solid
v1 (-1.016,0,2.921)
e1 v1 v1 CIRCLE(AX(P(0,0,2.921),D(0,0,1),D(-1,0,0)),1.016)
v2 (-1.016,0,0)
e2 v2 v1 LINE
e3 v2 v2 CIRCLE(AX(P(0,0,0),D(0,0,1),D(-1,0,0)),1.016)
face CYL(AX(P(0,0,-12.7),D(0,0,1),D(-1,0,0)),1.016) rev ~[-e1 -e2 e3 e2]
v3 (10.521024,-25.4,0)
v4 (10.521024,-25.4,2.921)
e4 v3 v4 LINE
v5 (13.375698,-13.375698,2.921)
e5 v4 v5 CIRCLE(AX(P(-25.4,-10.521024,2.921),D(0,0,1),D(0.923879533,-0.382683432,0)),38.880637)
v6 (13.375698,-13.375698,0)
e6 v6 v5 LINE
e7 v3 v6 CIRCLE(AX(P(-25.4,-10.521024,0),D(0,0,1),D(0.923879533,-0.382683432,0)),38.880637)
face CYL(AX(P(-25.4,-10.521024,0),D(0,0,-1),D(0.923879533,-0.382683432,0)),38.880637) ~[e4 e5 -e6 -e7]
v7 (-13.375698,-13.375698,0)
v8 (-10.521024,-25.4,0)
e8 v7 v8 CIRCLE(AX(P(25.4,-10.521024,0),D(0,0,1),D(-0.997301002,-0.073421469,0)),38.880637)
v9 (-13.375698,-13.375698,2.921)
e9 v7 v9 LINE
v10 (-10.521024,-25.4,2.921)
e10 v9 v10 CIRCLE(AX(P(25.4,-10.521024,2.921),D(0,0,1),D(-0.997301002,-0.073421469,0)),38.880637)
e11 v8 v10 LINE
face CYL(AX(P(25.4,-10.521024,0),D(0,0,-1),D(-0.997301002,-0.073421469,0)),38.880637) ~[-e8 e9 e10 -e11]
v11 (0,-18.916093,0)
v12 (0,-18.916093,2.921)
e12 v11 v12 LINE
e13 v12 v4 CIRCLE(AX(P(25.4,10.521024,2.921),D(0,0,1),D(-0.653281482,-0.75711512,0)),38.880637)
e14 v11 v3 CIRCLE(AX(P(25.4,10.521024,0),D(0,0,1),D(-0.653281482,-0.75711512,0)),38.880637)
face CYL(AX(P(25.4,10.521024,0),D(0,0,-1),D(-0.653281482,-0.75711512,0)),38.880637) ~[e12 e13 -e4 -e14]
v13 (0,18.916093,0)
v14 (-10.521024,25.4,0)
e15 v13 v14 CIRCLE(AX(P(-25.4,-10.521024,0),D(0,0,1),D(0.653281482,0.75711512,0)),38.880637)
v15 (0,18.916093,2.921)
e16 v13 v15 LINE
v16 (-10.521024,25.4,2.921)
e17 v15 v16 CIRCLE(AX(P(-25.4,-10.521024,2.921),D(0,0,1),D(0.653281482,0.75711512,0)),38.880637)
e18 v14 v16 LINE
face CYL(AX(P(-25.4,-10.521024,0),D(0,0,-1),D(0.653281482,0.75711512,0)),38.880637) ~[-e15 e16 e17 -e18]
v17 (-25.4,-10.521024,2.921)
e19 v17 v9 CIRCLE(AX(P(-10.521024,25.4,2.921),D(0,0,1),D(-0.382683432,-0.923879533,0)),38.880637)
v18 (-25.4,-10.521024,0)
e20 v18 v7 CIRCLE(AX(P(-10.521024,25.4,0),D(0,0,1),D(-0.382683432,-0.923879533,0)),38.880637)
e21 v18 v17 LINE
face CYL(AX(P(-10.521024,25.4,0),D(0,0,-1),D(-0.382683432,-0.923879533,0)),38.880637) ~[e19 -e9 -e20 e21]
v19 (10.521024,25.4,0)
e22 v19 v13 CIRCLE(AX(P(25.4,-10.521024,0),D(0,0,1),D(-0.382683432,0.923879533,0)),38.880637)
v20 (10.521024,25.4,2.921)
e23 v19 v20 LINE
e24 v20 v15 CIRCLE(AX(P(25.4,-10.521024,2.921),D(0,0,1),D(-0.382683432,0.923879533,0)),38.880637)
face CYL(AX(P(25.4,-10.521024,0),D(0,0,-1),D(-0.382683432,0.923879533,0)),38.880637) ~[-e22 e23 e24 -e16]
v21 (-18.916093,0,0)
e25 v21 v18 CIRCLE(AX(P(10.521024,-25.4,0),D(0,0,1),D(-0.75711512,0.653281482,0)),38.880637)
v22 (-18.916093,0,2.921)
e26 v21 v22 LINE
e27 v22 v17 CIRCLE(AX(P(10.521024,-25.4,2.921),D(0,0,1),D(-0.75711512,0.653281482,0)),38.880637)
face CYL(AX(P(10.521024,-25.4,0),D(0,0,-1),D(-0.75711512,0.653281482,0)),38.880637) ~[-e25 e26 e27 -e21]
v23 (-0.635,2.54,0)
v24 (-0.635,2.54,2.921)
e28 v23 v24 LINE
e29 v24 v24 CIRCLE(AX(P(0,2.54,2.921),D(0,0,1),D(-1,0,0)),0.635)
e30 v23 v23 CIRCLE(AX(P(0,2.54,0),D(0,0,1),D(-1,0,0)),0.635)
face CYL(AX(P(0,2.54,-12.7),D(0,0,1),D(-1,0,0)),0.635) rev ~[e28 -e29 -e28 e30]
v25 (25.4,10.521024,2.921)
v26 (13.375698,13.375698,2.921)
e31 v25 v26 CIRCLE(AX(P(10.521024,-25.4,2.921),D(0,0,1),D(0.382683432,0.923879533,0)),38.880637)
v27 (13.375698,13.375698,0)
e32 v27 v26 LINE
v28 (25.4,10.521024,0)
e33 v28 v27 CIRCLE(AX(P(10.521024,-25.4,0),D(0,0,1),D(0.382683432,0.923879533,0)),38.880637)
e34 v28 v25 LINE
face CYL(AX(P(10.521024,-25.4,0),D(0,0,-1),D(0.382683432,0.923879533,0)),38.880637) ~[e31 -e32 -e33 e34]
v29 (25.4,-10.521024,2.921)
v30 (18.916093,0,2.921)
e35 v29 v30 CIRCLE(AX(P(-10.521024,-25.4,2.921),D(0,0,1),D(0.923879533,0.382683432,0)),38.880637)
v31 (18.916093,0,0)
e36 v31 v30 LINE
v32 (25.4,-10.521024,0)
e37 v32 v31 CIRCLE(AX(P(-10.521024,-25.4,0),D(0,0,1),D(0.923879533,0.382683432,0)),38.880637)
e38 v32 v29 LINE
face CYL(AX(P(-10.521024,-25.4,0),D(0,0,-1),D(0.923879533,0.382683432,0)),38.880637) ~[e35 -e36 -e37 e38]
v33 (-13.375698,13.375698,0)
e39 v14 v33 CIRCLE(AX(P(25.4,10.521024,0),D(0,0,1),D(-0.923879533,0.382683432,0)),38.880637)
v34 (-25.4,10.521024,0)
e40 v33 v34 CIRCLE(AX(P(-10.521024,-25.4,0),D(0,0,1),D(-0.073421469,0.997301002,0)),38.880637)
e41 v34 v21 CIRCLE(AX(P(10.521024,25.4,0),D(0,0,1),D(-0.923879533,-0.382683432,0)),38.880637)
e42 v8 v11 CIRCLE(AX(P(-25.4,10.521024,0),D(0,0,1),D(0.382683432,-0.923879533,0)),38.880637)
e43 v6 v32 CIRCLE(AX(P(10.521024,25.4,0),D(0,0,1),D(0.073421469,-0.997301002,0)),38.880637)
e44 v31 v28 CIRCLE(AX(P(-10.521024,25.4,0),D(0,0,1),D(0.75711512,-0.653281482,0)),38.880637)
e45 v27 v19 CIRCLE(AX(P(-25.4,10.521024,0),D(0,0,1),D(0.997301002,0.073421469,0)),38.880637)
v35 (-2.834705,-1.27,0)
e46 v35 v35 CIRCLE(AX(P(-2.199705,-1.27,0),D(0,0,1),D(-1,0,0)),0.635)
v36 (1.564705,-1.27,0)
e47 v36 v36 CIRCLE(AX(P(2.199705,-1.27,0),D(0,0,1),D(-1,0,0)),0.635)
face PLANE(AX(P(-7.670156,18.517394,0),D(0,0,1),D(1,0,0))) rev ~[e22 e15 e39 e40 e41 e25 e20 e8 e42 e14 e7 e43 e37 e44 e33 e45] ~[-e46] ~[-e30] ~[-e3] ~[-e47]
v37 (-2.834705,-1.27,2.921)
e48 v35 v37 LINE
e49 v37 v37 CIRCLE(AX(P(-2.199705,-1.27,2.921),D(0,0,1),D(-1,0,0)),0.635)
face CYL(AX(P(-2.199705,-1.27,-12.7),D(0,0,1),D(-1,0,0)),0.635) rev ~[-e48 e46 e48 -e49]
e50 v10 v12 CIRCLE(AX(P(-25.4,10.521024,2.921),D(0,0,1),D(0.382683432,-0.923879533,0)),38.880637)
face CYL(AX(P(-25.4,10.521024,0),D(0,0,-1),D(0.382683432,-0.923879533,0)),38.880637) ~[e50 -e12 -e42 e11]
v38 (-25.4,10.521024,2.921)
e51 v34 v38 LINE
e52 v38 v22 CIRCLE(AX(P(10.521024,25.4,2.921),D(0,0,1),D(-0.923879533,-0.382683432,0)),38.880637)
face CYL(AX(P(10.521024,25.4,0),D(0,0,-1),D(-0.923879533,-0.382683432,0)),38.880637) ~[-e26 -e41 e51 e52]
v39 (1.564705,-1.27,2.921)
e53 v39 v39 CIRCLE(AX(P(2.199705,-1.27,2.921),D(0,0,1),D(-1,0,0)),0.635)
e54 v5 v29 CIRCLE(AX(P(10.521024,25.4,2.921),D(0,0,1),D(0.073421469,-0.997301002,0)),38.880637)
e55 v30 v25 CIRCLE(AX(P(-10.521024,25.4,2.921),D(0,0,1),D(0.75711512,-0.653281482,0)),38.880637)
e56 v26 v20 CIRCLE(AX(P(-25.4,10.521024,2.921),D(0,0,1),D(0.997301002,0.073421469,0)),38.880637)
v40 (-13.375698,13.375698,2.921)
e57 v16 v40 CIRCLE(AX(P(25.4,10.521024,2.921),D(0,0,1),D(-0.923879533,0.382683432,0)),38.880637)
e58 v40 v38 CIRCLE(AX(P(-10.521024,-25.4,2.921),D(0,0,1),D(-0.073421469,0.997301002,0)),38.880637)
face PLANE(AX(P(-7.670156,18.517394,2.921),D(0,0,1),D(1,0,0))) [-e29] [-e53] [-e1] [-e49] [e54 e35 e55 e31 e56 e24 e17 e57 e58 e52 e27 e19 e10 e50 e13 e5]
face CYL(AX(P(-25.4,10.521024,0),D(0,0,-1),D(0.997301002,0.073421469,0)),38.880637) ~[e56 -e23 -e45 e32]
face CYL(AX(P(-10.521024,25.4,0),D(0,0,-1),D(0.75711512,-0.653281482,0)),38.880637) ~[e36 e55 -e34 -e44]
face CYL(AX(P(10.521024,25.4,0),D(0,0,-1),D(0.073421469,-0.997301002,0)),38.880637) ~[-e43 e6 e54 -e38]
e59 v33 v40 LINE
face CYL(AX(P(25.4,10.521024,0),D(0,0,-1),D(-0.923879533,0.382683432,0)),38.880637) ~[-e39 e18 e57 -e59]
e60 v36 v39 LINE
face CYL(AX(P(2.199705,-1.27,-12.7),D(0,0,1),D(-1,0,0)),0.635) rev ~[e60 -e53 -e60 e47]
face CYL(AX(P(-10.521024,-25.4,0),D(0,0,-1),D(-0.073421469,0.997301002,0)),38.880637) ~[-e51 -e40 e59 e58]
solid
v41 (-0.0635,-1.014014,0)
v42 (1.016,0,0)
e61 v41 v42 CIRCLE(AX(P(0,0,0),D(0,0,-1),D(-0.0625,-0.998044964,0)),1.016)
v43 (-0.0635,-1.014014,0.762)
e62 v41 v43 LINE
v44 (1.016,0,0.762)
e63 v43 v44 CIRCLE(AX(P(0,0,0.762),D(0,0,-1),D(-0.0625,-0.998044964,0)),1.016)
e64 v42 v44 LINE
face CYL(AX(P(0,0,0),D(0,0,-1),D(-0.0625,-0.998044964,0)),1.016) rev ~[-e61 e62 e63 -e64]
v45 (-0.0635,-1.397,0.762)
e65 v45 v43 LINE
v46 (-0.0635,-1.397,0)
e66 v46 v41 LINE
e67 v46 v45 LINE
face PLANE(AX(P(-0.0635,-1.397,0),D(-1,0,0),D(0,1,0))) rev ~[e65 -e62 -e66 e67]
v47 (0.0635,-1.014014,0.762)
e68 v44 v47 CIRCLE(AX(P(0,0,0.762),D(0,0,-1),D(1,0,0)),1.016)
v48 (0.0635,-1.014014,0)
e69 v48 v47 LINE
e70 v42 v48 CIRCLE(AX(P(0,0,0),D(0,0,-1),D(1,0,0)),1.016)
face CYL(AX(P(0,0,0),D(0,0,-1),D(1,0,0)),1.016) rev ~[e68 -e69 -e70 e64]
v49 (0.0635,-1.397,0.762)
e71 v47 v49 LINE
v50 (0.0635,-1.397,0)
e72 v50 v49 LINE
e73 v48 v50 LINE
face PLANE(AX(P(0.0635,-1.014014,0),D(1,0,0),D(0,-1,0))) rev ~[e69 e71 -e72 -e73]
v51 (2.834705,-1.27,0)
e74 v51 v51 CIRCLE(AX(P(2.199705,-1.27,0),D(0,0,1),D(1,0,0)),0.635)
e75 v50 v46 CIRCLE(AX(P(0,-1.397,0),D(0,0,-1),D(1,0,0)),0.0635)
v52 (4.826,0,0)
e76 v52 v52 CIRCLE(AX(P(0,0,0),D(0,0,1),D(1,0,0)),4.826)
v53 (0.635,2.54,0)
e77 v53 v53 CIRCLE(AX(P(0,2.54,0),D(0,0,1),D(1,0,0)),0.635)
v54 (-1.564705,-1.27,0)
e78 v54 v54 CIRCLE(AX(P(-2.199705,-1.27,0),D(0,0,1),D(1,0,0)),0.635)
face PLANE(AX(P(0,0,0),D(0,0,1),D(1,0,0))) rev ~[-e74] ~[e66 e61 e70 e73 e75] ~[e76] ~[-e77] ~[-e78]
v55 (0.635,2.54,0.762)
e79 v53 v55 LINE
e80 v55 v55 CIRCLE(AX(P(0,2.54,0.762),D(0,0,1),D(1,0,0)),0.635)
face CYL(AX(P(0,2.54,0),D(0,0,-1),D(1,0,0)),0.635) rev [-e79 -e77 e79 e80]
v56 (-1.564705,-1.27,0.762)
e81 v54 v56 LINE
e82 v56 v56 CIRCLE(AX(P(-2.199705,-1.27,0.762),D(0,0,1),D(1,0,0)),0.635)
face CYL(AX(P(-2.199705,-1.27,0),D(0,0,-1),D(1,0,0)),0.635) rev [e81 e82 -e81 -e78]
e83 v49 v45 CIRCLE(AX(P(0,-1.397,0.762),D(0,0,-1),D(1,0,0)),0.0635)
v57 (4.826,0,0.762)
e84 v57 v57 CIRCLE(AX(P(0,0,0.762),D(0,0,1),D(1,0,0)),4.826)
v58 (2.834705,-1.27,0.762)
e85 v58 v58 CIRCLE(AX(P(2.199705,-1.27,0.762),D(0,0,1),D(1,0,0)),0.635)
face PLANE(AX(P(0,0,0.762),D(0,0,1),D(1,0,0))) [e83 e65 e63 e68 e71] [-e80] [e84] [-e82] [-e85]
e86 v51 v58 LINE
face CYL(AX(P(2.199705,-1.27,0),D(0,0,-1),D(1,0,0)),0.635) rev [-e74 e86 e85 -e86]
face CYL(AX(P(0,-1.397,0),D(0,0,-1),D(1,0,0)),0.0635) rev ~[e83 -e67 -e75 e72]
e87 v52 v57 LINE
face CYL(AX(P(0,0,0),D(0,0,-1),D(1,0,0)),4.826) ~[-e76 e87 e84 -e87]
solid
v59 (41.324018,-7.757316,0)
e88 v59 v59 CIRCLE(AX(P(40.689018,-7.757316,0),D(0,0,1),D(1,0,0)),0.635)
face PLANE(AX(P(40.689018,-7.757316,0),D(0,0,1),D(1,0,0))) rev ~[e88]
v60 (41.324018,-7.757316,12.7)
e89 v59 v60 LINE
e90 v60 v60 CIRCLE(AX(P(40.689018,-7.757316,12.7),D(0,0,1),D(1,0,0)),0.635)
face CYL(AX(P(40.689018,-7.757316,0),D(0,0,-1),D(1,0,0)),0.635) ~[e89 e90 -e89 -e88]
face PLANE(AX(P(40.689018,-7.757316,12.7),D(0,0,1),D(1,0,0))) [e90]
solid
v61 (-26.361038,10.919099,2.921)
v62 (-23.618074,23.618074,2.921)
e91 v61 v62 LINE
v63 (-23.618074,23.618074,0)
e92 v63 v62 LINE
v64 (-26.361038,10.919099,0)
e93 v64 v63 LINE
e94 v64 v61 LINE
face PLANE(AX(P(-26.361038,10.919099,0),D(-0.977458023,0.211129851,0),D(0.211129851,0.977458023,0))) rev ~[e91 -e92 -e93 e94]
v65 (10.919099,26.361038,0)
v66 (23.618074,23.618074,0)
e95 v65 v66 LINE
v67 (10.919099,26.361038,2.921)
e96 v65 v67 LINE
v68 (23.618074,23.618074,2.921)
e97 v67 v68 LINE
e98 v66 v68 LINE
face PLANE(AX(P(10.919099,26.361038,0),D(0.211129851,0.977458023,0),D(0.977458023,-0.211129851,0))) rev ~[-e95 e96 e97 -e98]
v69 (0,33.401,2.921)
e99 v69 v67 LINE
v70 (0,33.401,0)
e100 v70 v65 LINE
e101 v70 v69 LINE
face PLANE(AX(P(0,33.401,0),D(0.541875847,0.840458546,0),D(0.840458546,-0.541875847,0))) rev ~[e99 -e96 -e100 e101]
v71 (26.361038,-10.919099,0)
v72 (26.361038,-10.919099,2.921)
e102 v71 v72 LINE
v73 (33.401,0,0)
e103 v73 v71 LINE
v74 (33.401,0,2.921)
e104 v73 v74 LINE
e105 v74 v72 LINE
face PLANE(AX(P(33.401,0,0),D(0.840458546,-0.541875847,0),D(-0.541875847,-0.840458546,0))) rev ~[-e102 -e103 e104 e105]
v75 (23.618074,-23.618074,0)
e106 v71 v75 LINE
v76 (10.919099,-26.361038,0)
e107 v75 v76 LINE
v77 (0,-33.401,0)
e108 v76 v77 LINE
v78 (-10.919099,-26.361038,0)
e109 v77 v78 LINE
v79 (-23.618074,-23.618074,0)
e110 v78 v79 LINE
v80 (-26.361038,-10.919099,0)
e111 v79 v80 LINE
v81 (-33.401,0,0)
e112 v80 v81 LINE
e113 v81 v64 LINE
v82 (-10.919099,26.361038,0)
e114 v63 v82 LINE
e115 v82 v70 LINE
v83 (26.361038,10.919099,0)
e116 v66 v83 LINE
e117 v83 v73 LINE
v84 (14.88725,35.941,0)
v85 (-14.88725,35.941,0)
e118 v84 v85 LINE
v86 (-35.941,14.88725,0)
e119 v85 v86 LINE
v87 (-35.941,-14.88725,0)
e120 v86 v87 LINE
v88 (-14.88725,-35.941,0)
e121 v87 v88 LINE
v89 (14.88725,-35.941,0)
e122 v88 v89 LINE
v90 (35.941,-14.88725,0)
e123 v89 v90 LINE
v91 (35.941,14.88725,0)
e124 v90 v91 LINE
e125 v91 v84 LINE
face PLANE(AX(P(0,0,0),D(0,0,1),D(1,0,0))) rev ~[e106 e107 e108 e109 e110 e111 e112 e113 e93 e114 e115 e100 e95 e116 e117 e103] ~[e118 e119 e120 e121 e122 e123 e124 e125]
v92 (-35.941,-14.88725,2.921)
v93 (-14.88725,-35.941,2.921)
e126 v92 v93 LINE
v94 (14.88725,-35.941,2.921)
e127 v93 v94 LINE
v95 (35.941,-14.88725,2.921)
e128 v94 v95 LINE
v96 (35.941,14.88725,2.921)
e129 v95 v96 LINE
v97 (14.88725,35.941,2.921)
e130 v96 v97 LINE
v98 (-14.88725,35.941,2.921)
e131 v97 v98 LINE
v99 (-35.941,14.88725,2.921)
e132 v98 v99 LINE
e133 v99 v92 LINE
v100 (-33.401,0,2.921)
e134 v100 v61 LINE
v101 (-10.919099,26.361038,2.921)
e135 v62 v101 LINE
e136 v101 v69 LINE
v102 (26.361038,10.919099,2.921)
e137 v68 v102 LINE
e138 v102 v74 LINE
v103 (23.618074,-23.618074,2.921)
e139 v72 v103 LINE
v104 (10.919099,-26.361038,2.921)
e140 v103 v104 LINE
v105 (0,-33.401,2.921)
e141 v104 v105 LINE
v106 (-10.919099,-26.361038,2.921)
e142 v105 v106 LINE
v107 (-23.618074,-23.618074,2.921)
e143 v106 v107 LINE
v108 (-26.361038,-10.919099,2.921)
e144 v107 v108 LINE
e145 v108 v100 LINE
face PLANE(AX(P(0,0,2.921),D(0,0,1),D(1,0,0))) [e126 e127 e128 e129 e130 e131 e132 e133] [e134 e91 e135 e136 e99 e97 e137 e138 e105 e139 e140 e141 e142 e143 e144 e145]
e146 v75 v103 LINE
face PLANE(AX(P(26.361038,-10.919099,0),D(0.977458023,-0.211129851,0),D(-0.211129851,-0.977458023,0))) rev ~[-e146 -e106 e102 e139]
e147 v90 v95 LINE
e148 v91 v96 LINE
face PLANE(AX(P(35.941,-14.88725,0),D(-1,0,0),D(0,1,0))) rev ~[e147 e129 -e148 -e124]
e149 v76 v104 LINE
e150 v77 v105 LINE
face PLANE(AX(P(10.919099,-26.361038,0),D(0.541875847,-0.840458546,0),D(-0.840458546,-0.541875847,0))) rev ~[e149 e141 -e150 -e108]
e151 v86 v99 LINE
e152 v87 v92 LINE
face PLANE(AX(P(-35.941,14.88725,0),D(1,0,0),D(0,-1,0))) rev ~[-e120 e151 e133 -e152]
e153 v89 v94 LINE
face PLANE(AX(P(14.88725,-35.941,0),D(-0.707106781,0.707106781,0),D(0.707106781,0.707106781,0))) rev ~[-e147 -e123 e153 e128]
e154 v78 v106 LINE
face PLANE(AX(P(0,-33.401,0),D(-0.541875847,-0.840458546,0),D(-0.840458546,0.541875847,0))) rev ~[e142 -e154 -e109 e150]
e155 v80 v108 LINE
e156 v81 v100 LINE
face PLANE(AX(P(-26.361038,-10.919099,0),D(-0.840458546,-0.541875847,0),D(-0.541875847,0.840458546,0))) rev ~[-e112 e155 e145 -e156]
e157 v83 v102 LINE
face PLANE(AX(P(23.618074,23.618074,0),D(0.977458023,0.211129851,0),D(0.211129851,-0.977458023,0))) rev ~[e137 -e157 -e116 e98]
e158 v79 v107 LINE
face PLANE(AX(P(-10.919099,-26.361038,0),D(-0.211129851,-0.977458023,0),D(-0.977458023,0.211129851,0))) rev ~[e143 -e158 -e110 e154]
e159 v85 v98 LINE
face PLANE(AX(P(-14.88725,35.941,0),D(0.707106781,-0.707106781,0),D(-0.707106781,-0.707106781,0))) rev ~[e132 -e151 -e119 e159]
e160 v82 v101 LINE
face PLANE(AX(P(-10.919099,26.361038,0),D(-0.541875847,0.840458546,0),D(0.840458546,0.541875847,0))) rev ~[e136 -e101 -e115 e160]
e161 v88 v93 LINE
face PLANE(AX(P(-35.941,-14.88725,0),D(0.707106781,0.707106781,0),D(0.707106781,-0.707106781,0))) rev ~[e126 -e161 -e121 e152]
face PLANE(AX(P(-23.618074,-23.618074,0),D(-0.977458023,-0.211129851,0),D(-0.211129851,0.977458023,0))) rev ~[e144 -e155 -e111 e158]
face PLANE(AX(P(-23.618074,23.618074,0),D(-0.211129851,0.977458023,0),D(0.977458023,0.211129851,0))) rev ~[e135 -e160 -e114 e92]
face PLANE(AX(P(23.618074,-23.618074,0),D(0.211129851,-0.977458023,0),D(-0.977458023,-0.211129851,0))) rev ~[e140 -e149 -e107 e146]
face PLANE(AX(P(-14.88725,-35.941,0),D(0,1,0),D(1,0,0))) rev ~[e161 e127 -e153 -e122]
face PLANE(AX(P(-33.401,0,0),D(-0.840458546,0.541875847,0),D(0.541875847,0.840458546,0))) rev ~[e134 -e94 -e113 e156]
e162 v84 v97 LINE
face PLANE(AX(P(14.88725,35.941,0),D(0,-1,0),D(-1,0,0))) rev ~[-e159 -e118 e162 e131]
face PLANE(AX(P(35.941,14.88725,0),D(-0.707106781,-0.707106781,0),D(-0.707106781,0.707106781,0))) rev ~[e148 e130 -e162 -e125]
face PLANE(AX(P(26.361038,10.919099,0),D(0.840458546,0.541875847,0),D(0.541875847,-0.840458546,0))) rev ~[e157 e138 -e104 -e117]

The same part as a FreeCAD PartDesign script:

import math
import FreeCAD as App
import Part
import Sketcher
Q = App.Units.Quantity

doc = App.newDocument("Part")
body = doc.addObject("PartDesign::Body", "Body")

sketch1 = doc.addObject("Sketcher::SketchObject", "Sketch")
body.addObject(sketch1)
sketch1.AttachmentSupport = (doc.XY_Plane, [""])
sketch1.MapMode = "FlatFace"
sketch1.addGeometry([
    Part.ArcOfCircle(Part.Circle(App.Vector(-11, -25, 0), App.Vector(0, 0, 1), 39), math.radians(22.5), math.radians(40.79)),
    Part.ArcOfCircle(Part.Circle(App.Vector(-11, 25, 0), App.Vector(0, 0, 1), 39), math.radians(-40.79), math.radians(-22.5)),
    Part.ArcOfCircle(Part.Circle(App.Vector(11, -25, 0), App.Vector(0, 0, 1), 39), math.radians(67.5), math.radians(85.79)),
    Part.ArcOfCircle(Part.Circle(App.Vector(-25, 11, 0), App.Vector(0, 0, 1), 39), math.radians(4.21), math.radians(22.5)),
    Part.ArcOfCircle(Part.Circle(App.Vector(25, -11, 0), App.Vector(0, 0, 1), 39), math.radians(112.5), math.radians(130.79)),
    Part.ArcOfCircle(Part.Circle(App.Vector(-25, -11, 0), App.Vector(0, 0, 1), 39), math.radians(49.21), math.radians(67.5)),
    Part.ArcOfCircle(Part.Circle(App.Vector(25, 11, 0), App.Vector(0, 0, 1), 39), math.radians(157.5), math.radians(175.79)),
    Part.ArcOfCircle(Part.Circle(App.Vector(-11, -25, 0), App.Vector(0, 0, 1), 39), math.radians(94.21), math.radians(112.5)),
    Part.ArcOfCircle(Part.Circle(App.Vector(11, 25, 0), App.Vector(0, 0, 1), 39), math.radians(-157.5), math.radians(-139.21)),
    Part.ArcOfCircle(Part.Circle(App.Vector(11, -25, 0), App.Vector(0, 0, 1), 39), math.radians(139.21), math.radians(157.5)),
    Part.ArcOfCircle(Part.Circle(App.Vector(-11, 25, 0), App.Vector(0, 0, 1), 39), math.radians(-112.5), math.radians(-94.21)),
    Part.ArcOfCircle(Part.Circle(App.Vector(25, -11, 0), App.Vector(0, 0, 1), 39), math.radians(-175.79), math.radians(-157.5)),
    Part.ArcOfCircle(Part.Circle(App.Vector(-25, 11, 0), App.Vector(0, 0, 1), 39), math.radians(-67.5), math.radians(-49.21)),
    Part.ArcOfCircle(Part.Circle(App.Vector(25, 11, 0), App.Vector(0, 0, 1), 39), math.radians(-130.79), math.radians(-112.5)),
    Part.ArcOfCircle(Part.Circle(App.Vector(-25, -11, 0), App.Vector(0, 0, 1), 39), math.radians(-22.5), math.radians(-4.21)),
    Part.ArcOfCircle(Part.Circle(App.Vector(11, 25, 0), App.Vector(0, 0, 1), 39), math.radians(-85.79), math.radians(-67.5)),
], False)
sketch1.addConstraint([
    Sketcher.Constraint("Coincident", 0, 2, 1, 1),
    Sketcher.Constraint("Coincident", 1, 2, 2, 1),
    Sketcher.Constraint("Coincident", 2, 2, 3, 1),
    Sketcher.Constraint("Coincident", 3, 2, 4, 1),
    Sketcher.Constraint("Coincident", 4, 2, 5, 1),
    Sketcher.Constraint("Coincident", 5, 2, 6, 1),
    Sketcher.Constraint("Coincident", 6, 2, 7, 1),
    Sketcher.Constraint("Coincident", 7, 2, 8, 1),
    Sketcher.Constraint("Coincident", 8, 2, 9, 1),
    Sketcher.Constraint("Coincident", 9, 2, 10, 1),
    Sketcher.Constraint("Coincident", 10, 2, 11, 1),
    Sketcher.Constraint("Coincident", 11, 2, 12, 1),
    Sketcher.Constraint("Coincident", 12, 2, 13, 1),
    Sketcher.Constraint("Coincident", 13, 2, 14, 1),
    Sketcher.Constraint("Coincident", 14, 2, 15, 1),
    Sketcher.Constraint("Coincident", 15, 2, 0, 1),
    Sketcher.Constraint("Coincident", 7, 3, 0, 3),
    Sketcher.Constraint("Coincident", 9, 3, 2, 3),
    Sketcher.Constraint("Coincident", 10, 3, 1, 3),
    Sketcher.Constraint("Coincident", 11, 3, 4, 3),
    Sketcher.Constraint("Coincident", 12, 3, 3, 3),
    Sketcher.Constraint("Coincident", 13, 3, 6, 3),
    Sketcher.Constraint("Coincident", 14, 3, 5, 3),
    Sketcher.Constraint("Coincident", 15, 3, 8, 3),
    Sketcher.Constraint("Coincident", 1, 2, 6, 3),
    Sketcher.Constraint("Coincident", 3, 2, 8, 3),
    Sketcher.Constraint("Coincident", 5, 2, 1, 3),
    Sketcher.Constraint("Coincident", 7, 2, 3, 3),
    Sketcher.Constraint("Coincident", 9, 2, 5, 3),
    Sketcher.Constraint("Coincident", 11, 2, 0, 3),
    Sketcher.Constraint("Coincident", 13, 2, 2, 3),
    Sketcher.Constraint("Coincident", 15, 2, 4, 3),
    Sketcher.Constraint("Equal", 0, 1),
    Sketcher.Constraint("Equal", 1, 2),
    Sketcher.Constraint("Equal", 2, 3),
    Sketcher.Constraint("Equal", 3, 4),
    Sketcher.Constraint("Equal", 4, 5),
    Sketcher.Constraint("Equal", 6, 7),
    Sketcher.Constraint("Equal", 8, 9),
    Sketcher.Constraint("Symmetric", 1, 3, 2, 3, -1, 1),
    Sketcher.Constraint("Symmetric", 3, 3, 4, 3, -1, 1),
    Sketcher.Constraint("Symmetric", 0, 3, 2, 3, -2),
    Sketcher.Constraint("DistanceY", 0, 3, -1, 1, Q("1 in")),
    Sketcher.Constraint("DistanceX", 3, 3, -1, 1, Q("1 in")),
    Sketcher.Constraint("Radius", 0, Q("38.880637 mm")),
])
pad1 = doc.addObject("PartDesign::Pad", "Pad")
body.addObject(pad1)
pad1.Profile = sketch1
pad1.Length = Q("0.115 in")

sketch2 = doc.addObject("Sketcher::SketchObject", "Sketch001")
body.addObject(sketch2)
sketch2.AttachmentSupport = (doc.XY_Plane, [""])
sketch2.MapMode = "FlatFace"
sketch2.addGeometry(Part.Circle(App.Vector(0, 0, 0), App.Vector(0, 0, 1), 1), False)
sketch2.addConstraint([
    Sketcher.Constraint("Coincident", 0, 3, -1, 1),
    Sketcher.Constraint("Diameter", 0, Q("0.08 in")),
])
doc.recompute()
hole = doc.addObject("PartDesign::Hole", "Hole")
body.addObject(hole)
hole.Profile = sketch2
hole.ThreadType = "None"
hole.Diameter = Q("0.08 in")
hole.DepthType = "Dimension"
hole.Depth = Q("0.5 in")
hole.DrillPoint = "Angled"
hole.DrillPointAngle = 118
hole.Reversed = True

sketch3 = doc.addObject("Sketcher::SketchObject", "Sketch002")
body.addObject(sketch3)
sketch3.AttachmentSupport = (doc.XY_Plane, [""])
sketch3.MapMode = "FlatFace"
sketch3.addGeometry([
    Part.Circle(App.Vector(2.2, -1.3, 0), App.Vector(0, 0, 1), 0.6),
    Part.Circle(App.Vector(-2.2, -1.3, 0), App.Vector(0, 0, 1), 0.6),
    Part.Circle(App.Vector(0, 2.5, 0), App.Vector(0, 0, 1), 0.6),
], False)
sketch3.addConstraint([
    Sketcher.Constraint("Equal", 0, 1),
    Sketcher.Constraint("Equal", 1, 2),
    Sketcher.Constraint("Symmetric", 0, 3, 1, 3, -2),
    Sketcher.Constraint("PointOnObject", 2, 3, -2),
    Sketcher.Constraint("Diameter", 0, Q("0.05 in")),
    Sketcher.Constraint("DistanceY", -1, 1, 2, 3, Q("0.1 in")),
    Sketcher.Constraint("DistanceY", 0, 3, -1, 1, Q("0.05 in")),
    Sketcher.Constraint("DistanceX", 1, 3, 0, 3, Q("4.399409 mm")),
])
doc.recompute()
hole2 = doc.addObject("PartDesign::Hole", "Hole001")
body.addObject(hole2)
hole2.Profile = sketch3
hole2.ThreadType = "None"
hole2.Diameter = Q("0.05 in")
hole2.DepthType = "Dimension"
hole2.Depth = Q("0.5 in")
hole2.DrillPoint = "Angled"
hole2.DrillPointAngle = 118
hole2.Reversed = True
body2 = doc.addObject("PartDesign::Body", "Body001")

sketch4 = doc.addObject("Sketcher::SketchObject", "Sketch003")
body2.addObject(sketch4)
sketch4.AttachmentSupport = (doc.getObject("XY_Plane001"), [""])
sketch4.MapMode = "FlatFace"
sketch4.addGeometry([
    Part.LineSegment(App.Vector(36, -15, 0), App.Vector(36, 15, 0)),
    Part.LineSegment(App.Vector(36, 15, 0), App.Vector(15, 36, 0)),
    Part.LineSegment(App.Vector(15, 36, 0), App.Vector(-15, 36, 0)),
    Part.LineSegment(App.Vector(-15, 36, 0), App.Vector(-36, 15, 0)),
    Part.LineSegment(App.Vector(-36, 15, 0), App.Vector(-36, -15, 0)),
    Part.LineSegment(App.Vector(-36, -15, 0), App.Vector(-15, -36, 0)),
    Part.LineSegment(App.Vector(-15, -36, 0), App.Vector(15, -36, 0)),
    Part.LineSegment(App.Vector(15, -36, 0), App.Vector(36, -15, 0)),
    Part.LineSegment(App.Vector(0, -33, 0), App.Vector(-11, -26, 0)),
    Part.LineSegment(App.Vector(-11, -26, 0), App.Vector(-24, -24, 0)),
    Part.LineSegment(App.Vector(-24, -24, 0), App.Vector(-26, -11, 0)),
    Part.LineSegment(App.Vector(-26, -11, 0), App.Vector(-33, 0, 0)),
    Part.LineSegment(App.Vector(-33, 0, 0), App.Vector(-26, 11, 0)),
    Part.LineSegment(App.Vector(-26, 11, 0), App.Vector(-24, 24, 0)),
    Part.LineSegment(App.Vector(-24, 24, 0), App.Vector(-11, 26, 0)),
    Part.LineSegment(App.Vector(-11, 26, 0), App.Vector(0, 33, 0)),
    Part.LineSegment(App.Vector(0, 33, 0), App.Vector(11, 26, 0)),
    Part.LineSegment(App.Vector(11, 26, 0), App.Vector(24, 24, 0)),
    Part.LineSegment(App.Vector(24, 24, 0), App.Vector(26, 11, 0)),
    Part.LineSegment(App.Vector(26, 11, 0), App.Vector(33, 0, 0)),
    Part.LineSegment(App.Vector(33, 0, 0), App.Vector(26, -11, 0)),
    Part.LineSegment(App.Vector(26, -11, 0), App.Vector(24, -24, 0)),
    Part.LineSegment(App.Vector(24, -24, 0), App.Vector(11, -26, 0)),
    Part.LineSegment(App.Vector(11, -26, 0), App.Vector(0, -33, 0)),
], False)
sketch4.addConstraint([
    Sketcher.Constraint("Coincident", 0, 2, 1, 1),
    Sketcher.Constraint("Coincident", 1, 2, 2, 1),
    Sketcher.Constraint("Coincident", 2, 2, 3, 1),
    Sketcher.Constraint("Coincident", 3, 2, 4, 1),
    Sketcher.Constraint("Coincident", 4, 2, 5, 1),
    Sketcher.Constraint("Coincident", 5, 2, 6, 1),
    Sketcher.Constraint("Coincident", 6, 2, 7, 1),
    Sketcher.Constraint("Coincident", 7, 2, 0, 1),
    Sketcher.Constraint("Coincident", 8, 2, 9, 1),
    Sketcher.Constraint("Coincident", 9, 2, 10, 1),
    Sketcher.Constraint("Coincident", 10, 2, 11, 1),
    Sketcher.Constraint("Coincident", 11, 2, 12, 1),
    Sketcher.Constraint("Coincident", 12, 2, 13, 1),
    Sketcher.Constraint("Coincident", 13, 2, 14, 1),
    Sketcher.Constraint("Coincident", 14, 2, 15, 1),
    Sketcher.Constraint("Coincident", 15, 2, 16, 1),
    Sketcher.Constraint("Coincident", 16, 2, 17, 1),
    Sketcher.Constraint("Coincident", 17, 2, 18, 1),
    Sketcher.Constraint("Coincident", 18, 2, 19, 1),
    Sketcher.Constraint("Coincident", 19, 2, 20, 1),
    Sketcher.Constraint("Coincident", 20, 2, 21, 1),
    Sketcher.Constraint("Coincident", 21, 2, 22, 1),
    Sketcher.Constraint("Coincident", 22, 2, 23, 1),
    Sketcher.Constraint("Coincident", 23, 2, 8, 1),
    Sketcher.Constraint("Vertical", 0),
    Sketcher.Constraint("Horizontal", 2),
    Sketcher.Constraint("Vertical", 4),
    Sketcher.Constraint("Horizontal", 6),
    Sketcher.Constraint("Symmetric", 0, 2, 4, 2, -1, 1),
    Sketcher.Constraint("Symmetric", 1, 2, 5, 2, -1, 1),
    Sketcher.Constraint("Symmetric", 8, 2, 16, 2, -1, 1),
    Sketcher.Constraint("Symmetric", 9, 2, 17, 2, -1, 1),
    Sketcher.Constraint("Symmetric", 10, 2, 18, 2, -1, 1),
    Sketcher.Constraint("Symmetric", 11, 2, 19, 2, -1, 1),
    Sketcher.Constraint("Symmetric", 12, 2, 20, 2, -1, 1),
    Sketcher.Constraint("Symmetric", 13, 2, 21, 2, -1, 1),
    Sketcher.Constraint("Symmetric", 14, 2, 22, 2, -1, 1),
    Sketcher.Constraint("Symmetric", 15, 2, 23, 2, -1, 1),
    Sketcher.Constraint("Symmetric", 14, 2, 16, 2, -2),
    Sketcher.Constraint("Symmetric", 13, 2, 17, 2, -2),
    Sketcher.Constraint("Symmetric", 12, 2, 18, 2, -2),
    Sketcher.Constraint("PointOnObject", 11, 2, -1),
    Sketcher.Constraint("PointOnObject", 15, 2, -2),
    Sketcher.Constraint("Perpendicular", 1, 3),
    Sketcher.Constraint("Perpendicular", 5, 7),
    Sketcher.Constraint("Perpendicular", 8, 12),
    Sketcher.Constraint("Perpendicular", 9, 13),
    Sketcher.Constraint("Horizontal", 0, 2, 3, 2),
    Sketcher.Constraint("Horizontal", 4, 2, 7, 2),
    Sketcher.Constraint("Vertical", 2, 2, 5, 2),
    Sketcher.Constraint("Equal", 6, 0),
    Sketcher.Constraint("Equal", 8, 9),
    Sketcher.Constraint("Equal", 9, 10),
    Sketcher.Constraint("Equal", 10, 11),
    Sketcher.Constraint("DistanceX", 3, 2, 11, 2, Q("0.1 in")),
    Sketcher.Constraint("DistanceX", 3, 2, 0, 2, Q("2.83 in")),
    Sketcher.Constraint("DistanceX", 2, 2, 2, 1, Q("29.774499 mm")),
    Sketcher.Constraint("DistanceX", 8, 2, -1, 1, Q("10.919099 mm")),
    Sketcher.Constraint("DistanceY", 8, 2, 4, 2, Q("11.473788 mm")),
])
pad2 = doc.addObject("PartDesign::Pad", "Pad001")
body2.addObject(pad2)
pad2.Profile = sketch4
pad2.Length = Q("0.115 in")
body3 = doc.addObject("PartDesign::Body", "Body002")

sketch5 = doc.addObject("Sketcher::SketchObject", "Sketch004")
body3.addObject(sketch5)
sketch5.AttachmentSupport = (doc.getObject("XY_Plane002"), [""])
sketch5.MapMode = "FlatFace"
sketch5.addGeometry([
    Part.Circle(App.Vector(0, 0, 0), App.Vector(0, 0, 1), 4.83),
    Part.Circle(App.Vector(-2.2, -1.27, 0), App.Vector(0, 0, 1), 0.64),
    Part.Circle(App.Vector(2.2, -1.27, 0), App.Vector(0, 0, 1), 0.64),
    Part.LineSegment(App.Vector(-0.06, -1.4, 0), App.Vector(-0.06, -1.01, 0)),
    Part.ArcOfCircle(Part.Circle(App.Vector(0, 0, 0), App.Vector(0, 0, 1), 1.02), math.radians(0), math.radians(266)),
    Part.ArcOfCircle(Part.Circle(App.Vector(0, 0, 0), App.Vector(0, 0, 1), 1.02), math.radians(-86), math.radians(0)),
    Part.LineSegment(App.Vector(0.06, -1.01, 0), App.Vector(0.06, -1.4, 0)),
    Part.ArcOfCircle(Part.Circle(App.Vector(0, -1.4, 0), App.Vector(0, 0, 1), 0.06), math.radians(180), math.radians(360)),
    Part.Circle(App.Vector(0, 2.54, 0), App.Vector(0, 0, 1), 0.64),
], False)
sketch5.addConstraint([
    Sketcher.Constraint("Coincident", 3, 2, 4, 2),
    Sketcher.Constraint("Tangent", 4, 1, 5, 2),
    Sketcher.Constraint("Coincident", 5, 1, 6, 1),
    Sketcher.Constraint("Tangent", 6, 2, 7, 2),
    Sketcher.Constraint("Tangent", 7, 1, 3, 1),
    Sketcher.Constraint("Vertical", 3),
    Sketcher.Constraint("Vertical", 6),
    Sketcher.Constraint("Coincident", 0, 3, -1, 1),
    Sketcher.Constraint("Coincident", 4, 3, -1, 1),
    Sketcher.Constraint("Equal", 1, 2),
    Sketcher.Constraint("Equal", 4, 5),
    Sketcher.Constraint("Equal", 2, 8),
    Sketcher.Constraint("Symmetric", 1, 3, 2, 3, -2),
    Sketcher.Constraint("PointOnObject", 7, 3, -2),
    Sketcher.Constraint("PointOnObject", 8, 3, -2),
    Sketcher.Constraint("PointOnObject", 4, 1, -1),
    Sketcher.Constraint("Diameter", 0, Q("0.38 in")),
    Sketcher.Constraint("Diameter", 1, Q("0.05 in")),
    Sketcher.Constraint("Radius", 4, Q("0.04 in")),
    Sketcher.Constraint("DistanceY", -1, 1, 8, 3, Q("0.1 in")),
    Sketcher.Constraint("Radius", 7, Q("0.0025 in")),
    Sketcher.Constraint("DistanceY", 1, 3, -1, 1, Q("0.05 in")),
    Sketcher.Constraint("DistanceY", 7, 3, -1, 1, Q("0.055 in")),
    Sketcher.Constraint("DistanceX", 1, 3, 2, 3, Q("4.399409 mm")),
])
pad3 = doc.addObject("PartDesign::Pad", "Pad002")
body3.addObject(pad3)
pad3.Profile = sketch5
pad3.Length = Q("0.03 in")
body4 = doc.addObject("PartDesign::Body", "Body003")

sketch6 = doc.addObject("Sketcher::SketchObject", "Sketch005")
body4.addObject(sketch6)
sketch6.AttachmentSupport = (doc.getObject("XY_Plane003"), [""])
sketch6.MapMode = "FlatFace"
sketch6.addGeometry(Part.Circle(App.Vector(40.7, -7.8, 0), App.Vector(0, 0, 1), 0.6), False)
sketch6.addConstraint([
    Sketcher.Constraint("Diameter", 0, Q("0.05 in")),
    Sketcher.Constraint("DistanceX", -1, 1, 0, 3, Q("40.689018 mm")),
    Sketcher.Constraint("DistanceY", 0, 3, -1, 1, Q("7.757316 mm")),
])
pad4 = doc.addObject("PartDesign::Pad", "Pad003")
body4.addObject(pad4)
pad4.Profile = sketch6
pad4.Length = Q("0.5 in")

doc.recompute()
